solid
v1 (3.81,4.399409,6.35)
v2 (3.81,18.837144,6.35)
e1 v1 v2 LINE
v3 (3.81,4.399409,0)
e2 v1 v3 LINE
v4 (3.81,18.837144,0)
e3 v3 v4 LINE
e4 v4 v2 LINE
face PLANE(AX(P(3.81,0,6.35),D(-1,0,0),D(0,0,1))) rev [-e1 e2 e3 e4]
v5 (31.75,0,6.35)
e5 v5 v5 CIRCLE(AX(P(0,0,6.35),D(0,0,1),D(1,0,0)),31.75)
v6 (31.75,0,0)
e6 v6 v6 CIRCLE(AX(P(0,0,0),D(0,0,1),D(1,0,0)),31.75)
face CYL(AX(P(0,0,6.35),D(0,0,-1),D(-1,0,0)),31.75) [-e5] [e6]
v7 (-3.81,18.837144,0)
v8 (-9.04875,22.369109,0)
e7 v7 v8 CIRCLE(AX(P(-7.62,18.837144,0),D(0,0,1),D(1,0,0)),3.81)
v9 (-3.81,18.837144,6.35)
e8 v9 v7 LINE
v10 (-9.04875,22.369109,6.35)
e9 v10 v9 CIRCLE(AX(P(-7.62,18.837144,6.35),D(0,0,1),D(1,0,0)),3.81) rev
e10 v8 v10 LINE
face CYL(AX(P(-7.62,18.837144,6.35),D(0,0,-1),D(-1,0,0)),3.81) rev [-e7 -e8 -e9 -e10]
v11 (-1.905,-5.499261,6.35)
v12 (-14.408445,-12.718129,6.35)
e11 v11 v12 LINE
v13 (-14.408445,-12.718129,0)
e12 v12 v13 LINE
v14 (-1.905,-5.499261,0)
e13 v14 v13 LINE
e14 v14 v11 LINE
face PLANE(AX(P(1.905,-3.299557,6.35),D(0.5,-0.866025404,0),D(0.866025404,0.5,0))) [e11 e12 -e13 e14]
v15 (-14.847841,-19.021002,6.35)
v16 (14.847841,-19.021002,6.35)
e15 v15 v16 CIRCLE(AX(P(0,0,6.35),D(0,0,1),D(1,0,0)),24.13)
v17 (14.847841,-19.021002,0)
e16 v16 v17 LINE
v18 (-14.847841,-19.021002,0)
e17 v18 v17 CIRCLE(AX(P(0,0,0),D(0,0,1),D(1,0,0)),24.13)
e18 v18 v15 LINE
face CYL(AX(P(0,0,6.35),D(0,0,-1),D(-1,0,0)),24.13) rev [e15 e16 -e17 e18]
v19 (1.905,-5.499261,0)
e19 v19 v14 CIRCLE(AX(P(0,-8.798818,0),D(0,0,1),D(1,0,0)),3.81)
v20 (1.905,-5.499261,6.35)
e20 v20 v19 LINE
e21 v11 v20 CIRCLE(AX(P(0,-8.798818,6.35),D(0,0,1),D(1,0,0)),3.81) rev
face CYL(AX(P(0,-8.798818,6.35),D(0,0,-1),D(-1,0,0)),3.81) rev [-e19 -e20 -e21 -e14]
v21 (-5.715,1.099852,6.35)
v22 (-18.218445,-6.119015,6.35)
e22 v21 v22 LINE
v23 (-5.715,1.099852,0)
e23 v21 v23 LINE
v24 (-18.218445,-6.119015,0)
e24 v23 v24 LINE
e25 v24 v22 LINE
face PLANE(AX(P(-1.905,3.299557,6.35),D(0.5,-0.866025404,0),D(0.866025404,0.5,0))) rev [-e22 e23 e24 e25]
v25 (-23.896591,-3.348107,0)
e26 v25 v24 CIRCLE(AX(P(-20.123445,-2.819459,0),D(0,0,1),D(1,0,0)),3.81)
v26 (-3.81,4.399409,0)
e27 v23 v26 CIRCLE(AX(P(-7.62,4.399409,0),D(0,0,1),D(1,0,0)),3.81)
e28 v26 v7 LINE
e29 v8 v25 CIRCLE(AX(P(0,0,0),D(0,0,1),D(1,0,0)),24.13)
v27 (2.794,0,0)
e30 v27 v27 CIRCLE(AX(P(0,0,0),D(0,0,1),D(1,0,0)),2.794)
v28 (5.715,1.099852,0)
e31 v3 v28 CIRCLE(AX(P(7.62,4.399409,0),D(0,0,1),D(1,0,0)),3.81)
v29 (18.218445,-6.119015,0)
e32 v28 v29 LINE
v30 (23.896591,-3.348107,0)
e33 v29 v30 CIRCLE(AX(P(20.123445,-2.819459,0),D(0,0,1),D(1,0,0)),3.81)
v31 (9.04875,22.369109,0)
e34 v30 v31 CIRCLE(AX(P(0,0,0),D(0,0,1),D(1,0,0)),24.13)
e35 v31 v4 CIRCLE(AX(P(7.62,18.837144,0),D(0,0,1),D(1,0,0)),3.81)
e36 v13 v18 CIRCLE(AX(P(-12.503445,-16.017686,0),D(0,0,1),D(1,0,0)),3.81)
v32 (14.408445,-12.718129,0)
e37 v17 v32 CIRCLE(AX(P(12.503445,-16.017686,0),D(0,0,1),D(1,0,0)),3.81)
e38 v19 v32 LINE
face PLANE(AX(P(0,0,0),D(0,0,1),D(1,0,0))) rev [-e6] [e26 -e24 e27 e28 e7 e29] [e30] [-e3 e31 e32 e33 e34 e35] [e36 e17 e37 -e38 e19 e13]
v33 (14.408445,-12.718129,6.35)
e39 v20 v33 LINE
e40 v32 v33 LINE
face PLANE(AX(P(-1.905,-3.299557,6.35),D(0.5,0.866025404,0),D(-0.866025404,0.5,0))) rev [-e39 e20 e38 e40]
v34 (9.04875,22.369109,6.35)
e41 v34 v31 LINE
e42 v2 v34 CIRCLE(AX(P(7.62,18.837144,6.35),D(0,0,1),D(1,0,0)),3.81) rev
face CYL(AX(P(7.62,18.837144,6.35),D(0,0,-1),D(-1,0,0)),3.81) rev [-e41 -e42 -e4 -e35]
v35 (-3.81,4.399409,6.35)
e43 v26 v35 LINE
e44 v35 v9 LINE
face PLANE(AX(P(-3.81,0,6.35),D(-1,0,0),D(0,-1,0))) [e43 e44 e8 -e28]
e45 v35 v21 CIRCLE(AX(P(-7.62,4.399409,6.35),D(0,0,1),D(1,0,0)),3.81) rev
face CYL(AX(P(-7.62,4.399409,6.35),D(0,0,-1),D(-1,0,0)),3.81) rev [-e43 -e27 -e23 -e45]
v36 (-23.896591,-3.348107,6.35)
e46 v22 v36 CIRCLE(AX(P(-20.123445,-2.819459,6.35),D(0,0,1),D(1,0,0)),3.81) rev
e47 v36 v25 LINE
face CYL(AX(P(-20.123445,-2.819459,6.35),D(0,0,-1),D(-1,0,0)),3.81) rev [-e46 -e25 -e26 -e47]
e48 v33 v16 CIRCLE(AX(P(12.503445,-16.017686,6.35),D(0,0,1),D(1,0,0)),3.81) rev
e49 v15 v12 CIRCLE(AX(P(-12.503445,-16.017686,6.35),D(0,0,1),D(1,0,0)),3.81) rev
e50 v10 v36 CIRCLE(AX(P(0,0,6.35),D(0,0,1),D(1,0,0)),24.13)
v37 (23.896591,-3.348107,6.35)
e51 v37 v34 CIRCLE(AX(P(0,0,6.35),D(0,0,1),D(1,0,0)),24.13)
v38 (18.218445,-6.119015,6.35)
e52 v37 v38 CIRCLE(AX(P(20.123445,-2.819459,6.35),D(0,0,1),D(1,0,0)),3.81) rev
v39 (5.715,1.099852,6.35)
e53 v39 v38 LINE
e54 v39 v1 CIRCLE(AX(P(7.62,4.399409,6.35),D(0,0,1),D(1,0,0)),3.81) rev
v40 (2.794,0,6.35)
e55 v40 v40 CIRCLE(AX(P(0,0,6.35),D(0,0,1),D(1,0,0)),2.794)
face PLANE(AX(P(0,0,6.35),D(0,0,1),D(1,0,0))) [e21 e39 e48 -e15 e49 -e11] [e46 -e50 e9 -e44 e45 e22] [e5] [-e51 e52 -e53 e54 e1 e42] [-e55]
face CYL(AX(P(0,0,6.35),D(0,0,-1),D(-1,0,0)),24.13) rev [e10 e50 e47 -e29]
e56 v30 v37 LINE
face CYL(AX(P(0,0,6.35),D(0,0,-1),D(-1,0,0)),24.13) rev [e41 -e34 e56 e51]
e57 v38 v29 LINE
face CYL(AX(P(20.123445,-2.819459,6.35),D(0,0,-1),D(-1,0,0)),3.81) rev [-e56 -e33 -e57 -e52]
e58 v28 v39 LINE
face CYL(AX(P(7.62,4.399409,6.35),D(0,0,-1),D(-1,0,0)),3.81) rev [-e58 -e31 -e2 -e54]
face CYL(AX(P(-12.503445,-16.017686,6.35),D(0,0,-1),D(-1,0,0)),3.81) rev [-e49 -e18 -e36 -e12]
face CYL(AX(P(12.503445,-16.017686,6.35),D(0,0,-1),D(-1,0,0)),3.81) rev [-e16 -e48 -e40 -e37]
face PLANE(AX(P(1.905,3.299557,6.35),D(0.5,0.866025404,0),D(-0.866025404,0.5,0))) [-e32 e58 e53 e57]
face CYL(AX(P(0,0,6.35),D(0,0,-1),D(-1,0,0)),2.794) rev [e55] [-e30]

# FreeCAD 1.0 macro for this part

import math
import FreeCAD as App
import Part
import Sketcher

V = App.Vector
Q = App.Units.Quantity


def edges_at(feature, points):
    """Names of the edges that pass closest to the given points."""
    edges = feature.Shape.Edges
    near = lambda p: min(range(len(edges)), key=lambda i: edges[i].distToShape(Part.Vertex(*p))[0])
    return sorted({f"Edge{near(p) + 1}" for p in points})

doc = App.newDocument("Part")
body = doc.addObject("PartDesign::Body", "Body")

# Sketch on XY plane
sketch1 = doc.addObject("Sketcher::SketchObject", "Sketch")
body.addObject(sketch1)
sketch1.AttachmentSupport = (doc.XY_Plane, [""])
sketch1.MapMode = "FlatFace"
sketch1.addGeometry([
    Part.Circle(V(0, 0, 0), V(0, 0, 1), 31.75),  # 0
    Part.ArcOfCircle(Part.Circle(V(0, 0, 0), V(0, 0, 1), 24.13), math.radians(-140.91528), math.radians(-39.08472)),  # 1
    Part.LineSegment(V(-18.730058, -15.213213, 0), V(0, -4.399409, 0)),  # 2
    Part.LineSegment(V(0, -4.399409, 0), V(18.730058, -15.213213, 0)),  # 3
    Part.ArcOfCircle(Part.Circle(V(0, 0, 0), V(0, 0, 1), 24.13), math.radians(99.08472), math.radians(200.91528)),  # 4
    Part.LineSegment(V(-3.81, 23.827312, 0), V(-3.81, 2.199705, 0)),  # 5
    Part.LineSegment(V(-3.81, 2.199705, 0), V(-22.540058, -8.614099, 0)),  # 6
    Part.Circle(V(0, 0, 0), V(0, 0, 1), 2.794),  # 7
    Part.ArcOfCircle(Part.Circle(V(0, 0, 0), V(0, 0, 1), 24.13), math.radians(-20.91528), math.radians(80.91528)),  # 8
    Part.LineSegment(V(22.540058, -8.614099, 0), V(3.81, 2.199705, 0)),  # 9
    Part.LineSegment(V(3.81, 2.199705, 0), V(3.81, 23.827312, 0)),  # 10
], False)
sketch1.addConstraint([
    Sketcher.Constraint("Coincident", 1, 1, 2, 1),
    Sketcher.Constraint("Coincident", 2, 2, 3, 1),
    Sketcher.Constraint("Coincident", 3, 2, 1, 2),
    Sketcher.Constraint("Coincident", 4, 1, 5, 1),
    Sketcher.Constraint("Coincident", 5, 2, 6, 1),
    Sketcher.Constraint("Coincident", 6, 2, 4, 2),
    Sketcher.Constraint("Coincident", 8, 1, 9, 1),
    Sketcher.Constraint("Coincident", 9, 2, 10, 1),
    Sketcher.Constraint("Coincident", 10, 2, 8, 2),
    Sketcher.Constraint("Vertical", 5),
    Sketcher.Constraint("Vertical", 10),
    Sketcher.Constraint("Coincident", 0, 3, -1, 1),
    Sketcher.Constraint("Coincident", 1, 3, -1, 1),
    Sketcher.Constraint("Coincident", 4, 3, -1, 1),
    Sketcher.Constraint("Coincident", 7, 3, -1, 1),
    Sketcher.Constraint("Coincident", 8, 3, -1, 1),
    Sketcher.Constraint("Equal", 1, 4),
    Sketcher.Constraint("Equal", 4, 8),
    Sketcher.Constraint("Symmetric", 5, 2, 9, 2, -2),
    Sketcher.Constraint("PointOnObject", 2, 2, -2),
    Sketcher.Constraint("Parallel", 2, 6),
    Sketcher.Constraint("Parallel", 3, 9),
    Sketcher.Constraint("Horizontal", 1, 1, 3, 2),
    Sketcher.Constraint("Equal", 3, 6),
    Sketcher.Constraint("Diameter", 0, Q("2.5 in")),
    Sketcher.Constraint("Diameter", 7, Q("0.22 in")),
    Sketcher.Constraint("Radius", 1, Q("0.95 in")),
    Sketcher.Constraint("Angle", 2, Q("30 deg")),
    Sketcher.Constraint("DistanceX", 4, 1, 10, 2, Q("0.3 in")),
    Sketcher.Constraint("DistanceY", 6, 2, -1, 1, 8.614099),
])
pad1 = doc.addObject("PartDesign::Pad", "Pad")
body.addObject(pad1)
pad1.Profile = sketch1
pad1.Length = Q("0.25 in")
doc.recompute()

fillet = doc.addObject("PartDesign::Fillet", "Fillet")
body.addObject(fillet)
fillet.Base = (pad1, edges_at(pad1, [
    (18.73, -15.213, 3.175),
    (0, -4.399, 3.175),
    (-18.73, -15.213, 3.175),
    (3.81, 23.827, 3.175),
    (3.81, 2.2, 3.175),
    (22.54, -8.614, 3.175),
    (-22.54, -8.614, 3.175),
    (-3.81, 2.2, 3.175),
    (-3.81, 23.827, 3.175),
]))
fillet.Radius = Q("0.15 in")

doc.recompute()
